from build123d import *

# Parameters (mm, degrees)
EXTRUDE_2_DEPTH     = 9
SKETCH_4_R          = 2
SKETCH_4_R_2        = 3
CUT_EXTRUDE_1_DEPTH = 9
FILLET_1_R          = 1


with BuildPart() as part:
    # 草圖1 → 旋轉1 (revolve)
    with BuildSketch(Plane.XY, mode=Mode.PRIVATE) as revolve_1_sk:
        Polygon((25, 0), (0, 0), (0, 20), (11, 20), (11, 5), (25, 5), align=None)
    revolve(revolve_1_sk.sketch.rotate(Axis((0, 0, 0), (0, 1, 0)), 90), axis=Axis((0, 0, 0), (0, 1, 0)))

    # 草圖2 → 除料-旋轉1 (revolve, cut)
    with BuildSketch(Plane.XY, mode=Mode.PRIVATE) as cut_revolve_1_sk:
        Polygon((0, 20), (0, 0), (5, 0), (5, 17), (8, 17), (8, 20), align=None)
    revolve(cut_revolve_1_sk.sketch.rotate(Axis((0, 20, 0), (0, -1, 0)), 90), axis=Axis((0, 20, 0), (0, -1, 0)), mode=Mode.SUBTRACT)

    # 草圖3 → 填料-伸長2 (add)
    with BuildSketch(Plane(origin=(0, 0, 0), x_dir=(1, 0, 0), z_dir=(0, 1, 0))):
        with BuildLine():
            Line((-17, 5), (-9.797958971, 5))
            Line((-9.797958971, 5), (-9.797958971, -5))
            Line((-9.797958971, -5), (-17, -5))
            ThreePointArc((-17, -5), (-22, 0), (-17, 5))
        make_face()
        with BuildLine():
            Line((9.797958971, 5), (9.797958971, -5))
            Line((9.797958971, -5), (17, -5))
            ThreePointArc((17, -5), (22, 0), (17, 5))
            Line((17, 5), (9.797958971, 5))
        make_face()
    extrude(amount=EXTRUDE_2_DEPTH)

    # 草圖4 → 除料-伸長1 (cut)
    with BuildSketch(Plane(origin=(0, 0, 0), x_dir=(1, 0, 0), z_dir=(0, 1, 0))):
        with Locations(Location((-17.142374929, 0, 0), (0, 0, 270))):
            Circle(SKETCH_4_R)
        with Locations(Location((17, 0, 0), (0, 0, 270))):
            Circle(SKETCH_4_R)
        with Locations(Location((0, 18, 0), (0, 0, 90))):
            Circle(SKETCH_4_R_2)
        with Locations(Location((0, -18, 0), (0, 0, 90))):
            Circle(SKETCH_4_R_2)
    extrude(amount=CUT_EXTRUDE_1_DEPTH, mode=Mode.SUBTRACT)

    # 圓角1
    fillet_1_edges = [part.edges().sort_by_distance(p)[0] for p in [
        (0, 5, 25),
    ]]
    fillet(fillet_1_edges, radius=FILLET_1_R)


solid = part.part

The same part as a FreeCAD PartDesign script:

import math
import FreeCAD as App
import Part
import Sketcher
Q = App.Units.Quantity


def edges_at(feature, points):
    """Names of the edges that pass closest to the given points."""
    edges = feature.Shape.Edges
    near = lambda p: min(range(len(edges)), key=lambda i: edges[i].distToShape(Part.Vertex(*p))[0])
    return sorted({f"Edge{near(p) + 1}" for p in points})


def add_polygon(sketch, points):
    """Adds a closed chain of lines whose ends are joined by coincident constraints."""
    first, n = sketch.GeometryCount, len(points)
    for a, b in zip(points, points[1:] + points[:1]):
        sketch.addGeometry(Part.LineSegment(App.Vector(*a, 0), App.Vector(*b, 0)), False)
    for i in range(n):
        sketch.addConstraint(Sketcher.Constraint("Coincident", first + i, 2, first + (i + 1) % n, 1))

doc = App.newDocument("Part")
body = doc.addObject("PartDesign::Body", "Body")

# Sketch on XY plane
sketch1 = body.newObject("Sketcher::SketchObject", "Sketch")
sketch1.AttachmentSupport = (doc.getObject("XY_Plane"), [""])
sketch1.MapMode = "FlatFace"
add_polygon(sketch1, [(0, 0), (25, 0), (25, 5), (11, 5), (11, 20), (0, 20)])  # lines 0-5
sketch1.addConstraint([
    Sketcher.Constraint("Horizontal", 0),
    Sketcher.Constraint("Vertical", 1),
    Sketcher.Constraint("Horizontal", 2),
    Sketcher.Constraint("Vertical", 3),
    Sketcher.Constraint("Horizontal", 4),
    Sketcher.Constraint("Vertical", 5),
    Sketcher.Constraint("Coincident", 5, 2, -1, 1),
    Sketcher.Constraint("DistanceX", 0, 1, 0, 2, Q("25 mm")),
    Sketcher.Constraint("DistanceX", 2, 2, 2, 1, Q("14 mm")),
    Sketcher.Constraint("DistanceY", 1, 1, 1, 2, Q("5 mm")),
    Sketcher.Constraint("DistanceY", 3, 1, 3, 2, Q("15 mm")),
])
revolution = body.newObject("PartDesign::Revolution", "Revolution")
revolution.Profile = sketch1
revolution.ReferenceAxis = (sketch1, ["V_Axis"])
revolution.Angle = 360

# Sketch on XY plane
sketch2 = body.newObject("Sketcher::SketchObject", "Sketch001")
sketch2.AttachmentSupport = (doc.getObject("XY_Plane"), [""])
sketch2.MapMode = "FlatFace"
add_polygon(sketch2, [(0, 20), (0, 0), (5, 0), (5, 17), (8, 17), (8, 20)])  # lines 0-5
sketch2.addConstraint([
    Sketcher.Constraint("Vertical", 0),
    Sketcher.Constraint("Horizontal", 1),
    Sketcher.Constraint("Vertical", 2),
    Sketcher.Constraint("Horizontal", 3),
    Sketcher.Constraint("Vertical", 4),
    Sketcher.Constraint("Horizontal", 5),
    Sketcher.Constraint("Coincident", 0, 2, -1, 1),
    Sketcher.Constraint("Equal", 3, 4),
    Sketcher.Constraint("DistanceX", 1, 1, 1, 2, Q("5 mm")),
    Sketcher.Constraint("DistanceX", 3, 1, 3, 2, Q("3 mm")),
    Sketcher.Constraint("DistanceY", 0, 2, 0, 1, Q("20 mm")),
])
groove = body.newObject("PartDesign::Groove", "Groove")
groove.Profile = sketch2
groove.ReferenceAxis = (sketch2, ["V_Axis"])
groove.Angle = 360

# Sketch on XZ plane
sketch3 = body.newObject("Sketcher::SketchObject", "Sketch002")
sketch3.AttachmentSupport = (doc.getObject("XZ_Plane"), [""])
sketch3.MapMode = "FlatFace"
sketch3.addGeometry([
    Part.LineSegment(App.Vector(-9.797959, -5, 0), App.Vector(-17, -5, 0)),  # 0
    Part.ArcOfCircle(Part.Circle(App.Vector(-17, 0, 0), App.Vector(0, 0, 1), 5), math.radians(90), math.radians(270)),  # 1
    Part.LineSegment(App.Vector(-17, 5, 0), App.Vector(-9.797959, 5, 0)),  # 2
    Part.LineSegment(App.Vector(-9.797959, 5, 0), App.Vector(-9.797959, -5, 0)),  # 3
    Part.LineSegment(App.Vector(9.797959, -5, 0), App.Vector(9.797959, 5, 0)),  # 4
    Part.LineSegment(App.Vector(9.797959, 5, 0), App.Vector(17, 5, 0)),  # 5
    Part.ArcOfCircle(Part.Circle(App.Vector(17, 0, 0), App.Vector(0, 0, 1), 5), math.radians(-90), math.radians(90)),  # 6
    Part.LineSegment(App.Vector(17, -5, 0), App.Vector(9.797959, -5, 0)),  # 7
], False)
sketch3.addConstraint([
    Sketcher.Constraint("Tangent", 0, 2, 1, 2),
    Sketcher.Constraint("Tangent", 1, 1, 2, 1),
    Sketcher.Constraint("Coincident", 2, 2, 3, 1),
    Sketcher.Constraint("Coincident", 3, 2, 0, 1),
    Sketcher.Constraint("Coincident", 4, 2, 5, 1),
    Sketcher.Constraint("Tangent", 5, 2, 6, 2),
    Sketcher.Constraint("Tangent", 6, 1, 7, 1),
    Sketcher.Constraint("Coincident", 7, 2, 4, 1),
    Sketcher.Constraint("Horizontal", 0),
    Sketcher.Constraint("Horizontal", 2),
    Sketcher.Constraint("Vertical", 3),
    Sketcher.Constraint("Vertical", 4),
    Sketcher.Constraint("Horizontal", 5),
    Sketcher.Constraint("Horizontal", 7),
    Sketcher.Constraint("Equal", 1, 6),
    Sketcher.Constraint("Symmetric", 1, 3, 6, 3, -1, 1),
    Sketcher.Constraint("Symmetric", 2, 2, 4, 2, -2),
    Sketcher.Constraint("Radius", 1, Q("5 mm")),
    Sketcher.Constraint("DistanceX", 1, 3, -1, 1, Q("17 mm")),
    Sketcher.Constraint("DistanceX", 0, 2, 0, 1, Q("7.202041 mm")),
])
pad1 = body.newObject("PartDesign::Pad", "Pad")
pad1.Profile = sketch3
pad1.Length = 9
pad1.Reversed = True

# Sketch on XZ plane
sketch4 = body.newObject("Sketcher::SketchObject", "Sketch003")
sketch4.AttachmentSupport = (doc.getObject("XZ_Plane"), [""])
sketch4.MapMode = "FlatFace"
sketch4.addGeometry([
    Part.Circle(App.Vector(-17.142375, 0, 0), App.Vector(0, 0, 1), 2),
    Part.Circle(App.Vector(17, 0, 0), App.Vector(0, 0, 1), 2),
    Part.Circle(App.Vector(0, -18, 0), App.Vector(0, 0, 1), 3),
    Part.Circle(App.Vector(0, 18, 0), App.Vector(0, 0, 1), 3),
], False)
sketch4.addConstraint([
    Sketcher.Constraint("Equal", 0, 1),
    Sketcher.Constraint("Equal", 2, 3),
    Sketcher.Constraint("Symmetric", 2, 3, 3, 3, -1, 1),
    Sketcher.Constraint("PointOnObject", 0, 3, -1),
    Sketcher.Constraint("PointOnObject", 1, 3, -1),
    Sketcher.Constraint("PointOnObject", 2, 3, -2),
    Sketcher.Constraint("Diameter", 0, Q("4 mm")),
    Sketcher.Constraint("Diameter", 2, Q("6 mm")),
    Sketcher.Constraint("DistanceX", -1, 1, 1, 3, Q("17 mm")),
    Sketcher.Constraint("DistanceY", 2, 3, -1, 1, Q("18 mm")),
    Sketcher.Constraint("DistanceX", 0, 3, -1, 1, Q("17.142375 mm")),
])
pocket1 = body.newObject("PartDesign::Pocket", "Pocket")
pocket1.Profile = sketch4
pocket1.Length = 9
doc.recompute()

fillet = body.newObject("PartDesign::Fillet", "Fillet")
fillet.Base = (pocket1, edges_at(pocket1, [(0, 5, 25)]))
fillet.Radius = 1

doc.recompute()
